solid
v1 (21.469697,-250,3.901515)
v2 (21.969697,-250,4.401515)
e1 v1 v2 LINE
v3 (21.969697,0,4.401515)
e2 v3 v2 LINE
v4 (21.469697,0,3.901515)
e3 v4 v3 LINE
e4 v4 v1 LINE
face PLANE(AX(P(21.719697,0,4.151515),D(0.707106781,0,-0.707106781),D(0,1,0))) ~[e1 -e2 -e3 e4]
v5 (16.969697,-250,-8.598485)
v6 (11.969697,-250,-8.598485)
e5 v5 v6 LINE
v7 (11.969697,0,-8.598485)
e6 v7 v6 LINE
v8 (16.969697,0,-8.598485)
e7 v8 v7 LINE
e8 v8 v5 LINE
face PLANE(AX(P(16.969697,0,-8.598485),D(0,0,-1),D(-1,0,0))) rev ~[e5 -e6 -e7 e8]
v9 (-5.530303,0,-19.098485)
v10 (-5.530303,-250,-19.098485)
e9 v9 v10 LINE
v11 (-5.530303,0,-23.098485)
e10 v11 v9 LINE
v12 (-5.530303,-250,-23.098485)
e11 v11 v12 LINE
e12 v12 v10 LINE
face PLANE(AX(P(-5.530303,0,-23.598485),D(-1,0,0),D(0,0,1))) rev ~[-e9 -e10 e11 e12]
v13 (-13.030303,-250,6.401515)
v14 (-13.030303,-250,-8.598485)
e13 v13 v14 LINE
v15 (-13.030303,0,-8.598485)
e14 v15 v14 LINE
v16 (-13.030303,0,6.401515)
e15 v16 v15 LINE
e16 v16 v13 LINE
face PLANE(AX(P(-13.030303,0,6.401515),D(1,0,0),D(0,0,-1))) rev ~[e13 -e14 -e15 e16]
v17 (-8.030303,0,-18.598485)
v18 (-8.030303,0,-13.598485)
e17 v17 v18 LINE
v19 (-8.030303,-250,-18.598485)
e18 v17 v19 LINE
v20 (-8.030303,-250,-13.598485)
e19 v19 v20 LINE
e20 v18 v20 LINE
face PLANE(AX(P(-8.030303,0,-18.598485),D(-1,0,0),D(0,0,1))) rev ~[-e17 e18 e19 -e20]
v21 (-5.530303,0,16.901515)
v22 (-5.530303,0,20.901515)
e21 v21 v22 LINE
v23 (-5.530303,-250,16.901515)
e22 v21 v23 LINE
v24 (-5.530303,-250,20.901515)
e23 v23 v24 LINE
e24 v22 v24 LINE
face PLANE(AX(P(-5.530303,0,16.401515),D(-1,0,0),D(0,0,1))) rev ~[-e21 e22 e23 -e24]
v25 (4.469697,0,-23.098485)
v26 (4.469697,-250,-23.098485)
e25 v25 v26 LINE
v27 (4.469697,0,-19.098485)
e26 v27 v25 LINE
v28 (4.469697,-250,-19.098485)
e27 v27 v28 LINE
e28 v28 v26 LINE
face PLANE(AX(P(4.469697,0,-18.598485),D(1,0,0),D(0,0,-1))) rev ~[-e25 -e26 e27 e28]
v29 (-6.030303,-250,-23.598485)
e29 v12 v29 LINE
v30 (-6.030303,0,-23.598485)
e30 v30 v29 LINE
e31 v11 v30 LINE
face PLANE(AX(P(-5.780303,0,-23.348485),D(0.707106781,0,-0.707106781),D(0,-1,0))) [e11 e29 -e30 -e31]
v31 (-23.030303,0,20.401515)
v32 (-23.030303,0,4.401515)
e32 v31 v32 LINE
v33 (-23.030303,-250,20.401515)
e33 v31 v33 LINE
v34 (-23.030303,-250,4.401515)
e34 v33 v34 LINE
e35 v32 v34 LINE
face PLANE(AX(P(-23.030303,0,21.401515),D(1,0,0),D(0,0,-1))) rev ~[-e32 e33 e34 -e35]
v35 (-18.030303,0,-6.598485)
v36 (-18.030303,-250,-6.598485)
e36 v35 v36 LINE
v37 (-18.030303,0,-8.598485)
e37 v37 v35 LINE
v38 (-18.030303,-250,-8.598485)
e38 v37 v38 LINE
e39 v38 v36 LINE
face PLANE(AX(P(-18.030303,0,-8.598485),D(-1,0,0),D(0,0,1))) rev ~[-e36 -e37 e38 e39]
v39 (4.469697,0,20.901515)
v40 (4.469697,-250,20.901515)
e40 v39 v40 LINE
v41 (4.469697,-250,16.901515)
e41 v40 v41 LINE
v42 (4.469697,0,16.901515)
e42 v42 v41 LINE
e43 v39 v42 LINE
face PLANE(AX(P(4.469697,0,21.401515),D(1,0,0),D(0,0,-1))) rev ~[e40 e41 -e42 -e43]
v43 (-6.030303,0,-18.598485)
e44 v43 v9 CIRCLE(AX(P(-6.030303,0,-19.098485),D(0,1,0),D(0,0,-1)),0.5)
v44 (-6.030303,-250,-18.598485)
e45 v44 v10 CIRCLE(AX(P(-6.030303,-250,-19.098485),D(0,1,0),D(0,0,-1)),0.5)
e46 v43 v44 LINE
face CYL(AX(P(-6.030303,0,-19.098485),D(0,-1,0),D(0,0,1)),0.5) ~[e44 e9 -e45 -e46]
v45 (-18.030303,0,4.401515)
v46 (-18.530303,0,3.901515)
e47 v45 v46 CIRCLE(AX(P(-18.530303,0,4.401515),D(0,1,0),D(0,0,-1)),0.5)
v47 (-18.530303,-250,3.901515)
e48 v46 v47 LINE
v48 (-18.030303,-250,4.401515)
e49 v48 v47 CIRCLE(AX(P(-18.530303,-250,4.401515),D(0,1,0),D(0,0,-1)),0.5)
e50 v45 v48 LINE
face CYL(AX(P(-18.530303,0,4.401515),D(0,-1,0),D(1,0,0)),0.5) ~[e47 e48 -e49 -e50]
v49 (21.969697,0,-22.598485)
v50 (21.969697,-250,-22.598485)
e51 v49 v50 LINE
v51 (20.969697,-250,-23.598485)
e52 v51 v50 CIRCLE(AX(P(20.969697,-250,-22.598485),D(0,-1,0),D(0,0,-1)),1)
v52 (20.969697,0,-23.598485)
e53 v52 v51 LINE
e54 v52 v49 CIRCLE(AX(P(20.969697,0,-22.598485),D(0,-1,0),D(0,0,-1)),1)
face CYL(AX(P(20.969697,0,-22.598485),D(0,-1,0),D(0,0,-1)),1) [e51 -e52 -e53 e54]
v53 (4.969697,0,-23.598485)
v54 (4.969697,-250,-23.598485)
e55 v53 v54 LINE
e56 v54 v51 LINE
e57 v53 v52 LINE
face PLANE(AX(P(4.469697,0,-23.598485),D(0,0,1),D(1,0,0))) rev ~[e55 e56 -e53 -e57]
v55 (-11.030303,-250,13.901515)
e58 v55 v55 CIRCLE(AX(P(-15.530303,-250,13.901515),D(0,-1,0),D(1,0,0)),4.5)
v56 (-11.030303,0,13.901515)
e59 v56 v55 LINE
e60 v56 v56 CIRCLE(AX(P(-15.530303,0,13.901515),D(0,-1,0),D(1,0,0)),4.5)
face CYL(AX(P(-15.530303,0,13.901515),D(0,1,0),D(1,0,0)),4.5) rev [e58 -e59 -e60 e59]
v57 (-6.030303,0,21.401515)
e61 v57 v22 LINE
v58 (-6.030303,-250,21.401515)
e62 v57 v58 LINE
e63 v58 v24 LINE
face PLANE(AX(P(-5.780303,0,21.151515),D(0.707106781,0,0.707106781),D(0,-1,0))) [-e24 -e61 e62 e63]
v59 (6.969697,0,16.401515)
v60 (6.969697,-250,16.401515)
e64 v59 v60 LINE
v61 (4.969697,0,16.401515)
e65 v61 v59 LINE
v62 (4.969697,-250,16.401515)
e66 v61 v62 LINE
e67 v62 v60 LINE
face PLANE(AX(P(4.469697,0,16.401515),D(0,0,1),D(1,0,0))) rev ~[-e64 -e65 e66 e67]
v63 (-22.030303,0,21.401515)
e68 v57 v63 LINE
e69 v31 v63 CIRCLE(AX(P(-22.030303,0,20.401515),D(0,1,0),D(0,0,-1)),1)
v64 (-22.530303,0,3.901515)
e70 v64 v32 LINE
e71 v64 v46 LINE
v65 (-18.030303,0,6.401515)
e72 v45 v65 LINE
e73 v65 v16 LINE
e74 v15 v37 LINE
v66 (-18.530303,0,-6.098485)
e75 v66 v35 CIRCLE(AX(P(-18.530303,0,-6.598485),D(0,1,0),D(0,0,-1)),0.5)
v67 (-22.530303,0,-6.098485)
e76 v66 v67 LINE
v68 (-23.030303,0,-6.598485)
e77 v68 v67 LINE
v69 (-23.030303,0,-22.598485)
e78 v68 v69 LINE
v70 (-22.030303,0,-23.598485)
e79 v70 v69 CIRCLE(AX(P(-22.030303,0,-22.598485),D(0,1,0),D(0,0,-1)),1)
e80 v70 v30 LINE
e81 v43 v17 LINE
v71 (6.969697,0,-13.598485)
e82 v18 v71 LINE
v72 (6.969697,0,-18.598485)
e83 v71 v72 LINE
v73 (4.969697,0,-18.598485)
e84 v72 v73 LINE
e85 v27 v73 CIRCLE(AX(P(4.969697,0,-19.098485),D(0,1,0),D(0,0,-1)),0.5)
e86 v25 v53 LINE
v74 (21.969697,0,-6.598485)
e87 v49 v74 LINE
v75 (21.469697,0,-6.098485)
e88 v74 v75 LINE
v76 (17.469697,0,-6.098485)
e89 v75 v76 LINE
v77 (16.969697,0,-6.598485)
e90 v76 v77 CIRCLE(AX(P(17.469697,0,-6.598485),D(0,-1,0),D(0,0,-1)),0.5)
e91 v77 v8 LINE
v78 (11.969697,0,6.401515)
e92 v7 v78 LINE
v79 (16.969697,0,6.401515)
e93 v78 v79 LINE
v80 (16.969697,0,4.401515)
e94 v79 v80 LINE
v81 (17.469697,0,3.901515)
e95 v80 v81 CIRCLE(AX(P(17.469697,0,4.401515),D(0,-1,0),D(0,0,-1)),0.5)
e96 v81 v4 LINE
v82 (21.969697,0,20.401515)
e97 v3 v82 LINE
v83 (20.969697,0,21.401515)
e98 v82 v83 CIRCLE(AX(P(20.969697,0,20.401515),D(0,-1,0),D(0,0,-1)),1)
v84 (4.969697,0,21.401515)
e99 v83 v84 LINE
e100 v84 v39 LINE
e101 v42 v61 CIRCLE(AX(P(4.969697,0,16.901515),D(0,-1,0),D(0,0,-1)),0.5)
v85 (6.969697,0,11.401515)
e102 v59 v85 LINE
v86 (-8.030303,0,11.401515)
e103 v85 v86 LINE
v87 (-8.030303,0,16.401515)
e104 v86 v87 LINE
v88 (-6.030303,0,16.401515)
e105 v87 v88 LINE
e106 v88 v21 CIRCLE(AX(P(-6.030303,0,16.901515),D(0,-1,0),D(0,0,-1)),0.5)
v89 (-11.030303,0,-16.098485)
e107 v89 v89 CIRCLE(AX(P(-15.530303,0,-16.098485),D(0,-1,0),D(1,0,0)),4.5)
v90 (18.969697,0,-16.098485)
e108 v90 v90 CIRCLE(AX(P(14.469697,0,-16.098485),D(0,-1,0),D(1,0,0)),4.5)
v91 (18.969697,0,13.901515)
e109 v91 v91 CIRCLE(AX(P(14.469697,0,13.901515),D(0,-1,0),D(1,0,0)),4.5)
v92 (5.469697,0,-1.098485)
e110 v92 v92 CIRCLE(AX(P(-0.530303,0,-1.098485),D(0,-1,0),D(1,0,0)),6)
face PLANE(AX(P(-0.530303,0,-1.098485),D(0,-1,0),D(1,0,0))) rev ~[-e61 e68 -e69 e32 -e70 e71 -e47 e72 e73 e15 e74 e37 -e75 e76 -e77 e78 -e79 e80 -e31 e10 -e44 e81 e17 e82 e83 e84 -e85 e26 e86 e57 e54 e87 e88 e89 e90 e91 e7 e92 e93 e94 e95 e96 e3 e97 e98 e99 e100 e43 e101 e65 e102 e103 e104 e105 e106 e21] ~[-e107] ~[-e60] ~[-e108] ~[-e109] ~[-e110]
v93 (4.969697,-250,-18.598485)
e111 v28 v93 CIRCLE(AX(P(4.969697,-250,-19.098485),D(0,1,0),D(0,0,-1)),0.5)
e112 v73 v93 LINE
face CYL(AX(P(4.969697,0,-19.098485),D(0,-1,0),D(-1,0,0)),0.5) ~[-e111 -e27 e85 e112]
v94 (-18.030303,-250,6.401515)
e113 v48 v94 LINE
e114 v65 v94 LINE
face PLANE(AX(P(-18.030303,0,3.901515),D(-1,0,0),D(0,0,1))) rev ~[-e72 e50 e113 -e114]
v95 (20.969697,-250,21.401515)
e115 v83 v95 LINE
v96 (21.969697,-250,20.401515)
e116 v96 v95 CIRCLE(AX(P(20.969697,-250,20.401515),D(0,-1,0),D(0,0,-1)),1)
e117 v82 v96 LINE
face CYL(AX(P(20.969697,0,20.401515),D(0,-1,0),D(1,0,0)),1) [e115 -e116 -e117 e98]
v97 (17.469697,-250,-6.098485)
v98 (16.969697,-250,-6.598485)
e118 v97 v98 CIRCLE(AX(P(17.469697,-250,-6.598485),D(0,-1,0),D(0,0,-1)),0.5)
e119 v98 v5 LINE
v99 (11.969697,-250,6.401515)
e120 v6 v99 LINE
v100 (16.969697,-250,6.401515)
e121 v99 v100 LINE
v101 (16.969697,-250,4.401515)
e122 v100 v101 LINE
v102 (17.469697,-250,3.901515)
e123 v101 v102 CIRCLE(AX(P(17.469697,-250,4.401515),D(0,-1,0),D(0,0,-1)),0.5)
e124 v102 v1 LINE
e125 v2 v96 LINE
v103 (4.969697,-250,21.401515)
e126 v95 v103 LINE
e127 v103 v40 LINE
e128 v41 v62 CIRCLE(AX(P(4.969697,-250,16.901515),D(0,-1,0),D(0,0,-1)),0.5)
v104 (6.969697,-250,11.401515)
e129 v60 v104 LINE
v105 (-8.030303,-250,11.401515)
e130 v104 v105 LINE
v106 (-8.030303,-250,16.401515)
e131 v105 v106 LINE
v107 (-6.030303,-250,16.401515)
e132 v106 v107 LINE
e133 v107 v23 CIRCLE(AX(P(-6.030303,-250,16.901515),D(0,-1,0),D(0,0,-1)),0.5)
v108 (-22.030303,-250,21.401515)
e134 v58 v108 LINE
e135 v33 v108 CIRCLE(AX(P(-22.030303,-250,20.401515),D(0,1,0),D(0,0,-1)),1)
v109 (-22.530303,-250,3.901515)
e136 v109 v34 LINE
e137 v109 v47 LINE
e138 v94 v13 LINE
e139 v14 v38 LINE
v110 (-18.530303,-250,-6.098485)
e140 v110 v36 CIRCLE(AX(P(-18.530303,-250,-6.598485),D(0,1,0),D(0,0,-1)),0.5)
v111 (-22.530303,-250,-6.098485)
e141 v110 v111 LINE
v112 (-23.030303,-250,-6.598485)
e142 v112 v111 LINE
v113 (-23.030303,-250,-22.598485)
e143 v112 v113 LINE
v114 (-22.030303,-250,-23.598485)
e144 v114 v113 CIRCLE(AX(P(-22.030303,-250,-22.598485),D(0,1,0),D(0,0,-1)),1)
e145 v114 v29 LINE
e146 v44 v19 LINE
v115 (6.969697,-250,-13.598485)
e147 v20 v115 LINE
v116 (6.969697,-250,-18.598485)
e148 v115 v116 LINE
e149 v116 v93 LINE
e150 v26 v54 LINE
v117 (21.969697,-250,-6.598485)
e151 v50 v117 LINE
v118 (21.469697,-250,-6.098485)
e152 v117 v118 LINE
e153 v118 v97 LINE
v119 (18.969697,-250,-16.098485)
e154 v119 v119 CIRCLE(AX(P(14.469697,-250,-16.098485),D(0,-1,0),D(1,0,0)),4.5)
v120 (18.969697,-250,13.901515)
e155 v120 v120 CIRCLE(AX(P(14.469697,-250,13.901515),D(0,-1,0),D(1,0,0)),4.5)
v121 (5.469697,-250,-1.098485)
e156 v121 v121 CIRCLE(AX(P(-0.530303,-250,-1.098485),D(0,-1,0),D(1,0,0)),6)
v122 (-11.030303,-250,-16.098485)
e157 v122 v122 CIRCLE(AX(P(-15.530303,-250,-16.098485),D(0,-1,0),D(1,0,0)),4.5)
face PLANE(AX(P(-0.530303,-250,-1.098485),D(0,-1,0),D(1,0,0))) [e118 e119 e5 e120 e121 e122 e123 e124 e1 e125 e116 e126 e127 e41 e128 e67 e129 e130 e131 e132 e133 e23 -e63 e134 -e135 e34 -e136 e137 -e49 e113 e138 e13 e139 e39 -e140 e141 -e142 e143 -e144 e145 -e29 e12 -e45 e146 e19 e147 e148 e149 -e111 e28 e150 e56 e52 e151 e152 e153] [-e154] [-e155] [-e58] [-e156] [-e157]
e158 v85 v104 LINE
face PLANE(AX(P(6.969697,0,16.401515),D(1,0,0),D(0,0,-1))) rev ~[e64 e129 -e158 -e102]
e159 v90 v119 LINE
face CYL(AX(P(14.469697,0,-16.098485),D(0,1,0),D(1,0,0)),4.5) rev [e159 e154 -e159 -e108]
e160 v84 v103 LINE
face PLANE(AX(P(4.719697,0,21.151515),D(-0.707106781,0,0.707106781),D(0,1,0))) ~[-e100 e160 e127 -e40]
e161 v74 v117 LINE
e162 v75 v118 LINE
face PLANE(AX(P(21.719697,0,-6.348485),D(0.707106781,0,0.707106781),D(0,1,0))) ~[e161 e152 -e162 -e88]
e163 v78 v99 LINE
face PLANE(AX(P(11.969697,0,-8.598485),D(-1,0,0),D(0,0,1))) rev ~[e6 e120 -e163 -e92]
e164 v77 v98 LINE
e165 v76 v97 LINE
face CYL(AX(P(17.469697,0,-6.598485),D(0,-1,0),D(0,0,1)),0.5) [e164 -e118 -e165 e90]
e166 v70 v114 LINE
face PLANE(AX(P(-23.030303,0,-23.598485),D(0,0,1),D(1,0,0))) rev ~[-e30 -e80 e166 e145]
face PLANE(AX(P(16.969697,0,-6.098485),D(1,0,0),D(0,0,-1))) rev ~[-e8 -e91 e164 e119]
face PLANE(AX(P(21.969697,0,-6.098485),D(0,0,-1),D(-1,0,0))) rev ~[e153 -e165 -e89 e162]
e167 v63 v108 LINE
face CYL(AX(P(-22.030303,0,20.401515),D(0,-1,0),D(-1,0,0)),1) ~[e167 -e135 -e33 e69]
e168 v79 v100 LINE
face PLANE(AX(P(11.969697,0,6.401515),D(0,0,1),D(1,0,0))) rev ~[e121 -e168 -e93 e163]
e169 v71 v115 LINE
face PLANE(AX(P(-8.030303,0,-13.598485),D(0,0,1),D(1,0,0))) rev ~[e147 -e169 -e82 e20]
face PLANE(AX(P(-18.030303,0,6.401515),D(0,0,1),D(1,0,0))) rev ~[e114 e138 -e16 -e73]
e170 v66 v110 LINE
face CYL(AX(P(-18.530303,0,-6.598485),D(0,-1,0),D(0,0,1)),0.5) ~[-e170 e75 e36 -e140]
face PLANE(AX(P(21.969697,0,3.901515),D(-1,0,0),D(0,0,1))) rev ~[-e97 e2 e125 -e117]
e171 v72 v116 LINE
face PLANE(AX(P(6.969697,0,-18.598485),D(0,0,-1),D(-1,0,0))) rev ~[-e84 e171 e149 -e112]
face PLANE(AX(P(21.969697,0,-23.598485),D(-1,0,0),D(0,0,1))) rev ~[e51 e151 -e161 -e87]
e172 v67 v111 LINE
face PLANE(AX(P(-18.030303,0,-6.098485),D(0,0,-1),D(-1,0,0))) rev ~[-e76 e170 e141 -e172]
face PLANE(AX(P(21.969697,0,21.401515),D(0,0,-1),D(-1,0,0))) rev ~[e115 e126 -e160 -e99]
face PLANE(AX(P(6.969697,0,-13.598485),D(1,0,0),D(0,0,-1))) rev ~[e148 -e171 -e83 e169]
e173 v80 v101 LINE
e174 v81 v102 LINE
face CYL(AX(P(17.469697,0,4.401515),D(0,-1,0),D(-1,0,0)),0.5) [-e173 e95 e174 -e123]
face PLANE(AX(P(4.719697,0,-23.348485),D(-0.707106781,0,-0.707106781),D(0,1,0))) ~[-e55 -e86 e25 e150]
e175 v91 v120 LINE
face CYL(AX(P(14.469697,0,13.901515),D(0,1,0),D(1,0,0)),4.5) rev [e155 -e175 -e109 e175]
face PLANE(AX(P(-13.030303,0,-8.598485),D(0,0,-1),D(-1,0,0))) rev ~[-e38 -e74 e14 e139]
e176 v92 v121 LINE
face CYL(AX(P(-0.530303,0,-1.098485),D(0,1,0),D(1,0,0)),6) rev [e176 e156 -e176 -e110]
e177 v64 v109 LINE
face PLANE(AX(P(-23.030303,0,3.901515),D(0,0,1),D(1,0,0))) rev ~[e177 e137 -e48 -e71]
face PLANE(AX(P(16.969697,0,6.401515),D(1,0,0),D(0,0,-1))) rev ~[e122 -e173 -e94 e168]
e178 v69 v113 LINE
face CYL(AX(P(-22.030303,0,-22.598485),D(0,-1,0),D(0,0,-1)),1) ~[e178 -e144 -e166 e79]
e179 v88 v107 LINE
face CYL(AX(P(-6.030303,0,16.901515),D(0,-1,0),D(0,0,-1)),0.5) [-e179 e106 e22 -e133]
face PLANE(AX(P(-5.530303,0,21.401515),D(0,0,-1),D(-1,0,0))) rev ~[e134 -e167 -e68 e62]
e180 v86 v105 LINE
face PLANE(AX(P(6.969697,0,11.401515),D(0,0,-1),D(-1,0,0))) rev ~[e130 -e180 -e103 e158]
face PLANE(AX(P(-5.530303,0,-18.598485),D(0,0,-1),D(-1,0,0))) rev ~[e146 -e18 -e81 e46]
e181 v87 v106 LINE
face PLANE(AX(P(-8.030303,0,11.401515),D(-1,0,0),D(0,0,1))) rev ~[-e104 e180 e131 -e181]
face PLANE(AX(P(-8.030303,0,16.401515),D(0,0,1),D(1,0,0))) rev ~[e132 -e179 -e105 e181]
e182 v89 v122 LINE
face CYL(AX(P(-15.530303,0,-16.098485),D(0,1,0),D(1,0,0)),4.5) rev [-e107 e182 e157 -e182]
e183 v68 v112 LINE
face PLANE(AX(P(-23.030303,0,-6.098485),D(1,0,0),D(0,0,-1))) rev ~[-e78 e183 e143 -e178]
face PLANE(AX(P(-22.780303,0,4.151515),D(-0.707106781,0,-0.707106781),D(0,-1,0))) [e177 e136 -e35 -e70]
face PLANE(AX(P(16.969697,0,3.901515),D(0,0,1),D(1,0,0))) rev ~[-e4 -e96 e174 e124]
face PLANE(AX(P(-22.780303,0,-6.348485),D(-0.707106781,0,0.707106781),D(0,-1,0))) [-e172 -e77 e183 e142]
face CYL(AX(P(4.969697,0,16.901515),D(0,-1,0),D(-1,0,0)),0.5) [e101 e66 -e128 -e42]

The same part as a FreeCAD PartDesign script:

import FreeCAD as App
import Part
import Sketcher


def edges_at(feature, points):
    """Names of the edges that pass closest to the given points."""
    edges = feature.Shape.Edges
    near = lambda p: min(range(len(edges)), key=lambda i: edges[i].distToShape(Part.Vertex(*p))[0])
    return sorted({f"Edge{near(p) + 1}" for p in points})


def add_polygon(sketch, points):
    """Adds a closed chain of lines whose ends are joined by coincident constraints."""
    first, n = sketch.GeometryCount, len(points)
    for a, b in zip(points, points[1:] + points[:1]):
        sketch.addGeometry(Part.LineSegment(App.Vector(*a, 0), App.Vector(*b, 0)), False)
    for i in range(n):
        sketch.addConstraint(Sketcher.Constraint("Coincident", first + i, 2, first + (i + 1) % n, 1))

doc = App.newDocument("Part")
params = doc.addObject("Spreadsheet::Sheet", "Params")
for row, (alias, value) in enumerate([
    ("sketch1_diameter", "9 mm"),
    ("sketch1_diameter2", "12 mm"),
    ("sketch1_width", "5 mm"),
    ("sketch1_width2", "15 mm"),
    ("sketch1_width3", "17.5 mm"),
    ("pad1_length", "250 mm"),
    ("fillet_radius", "1 mm"),
    ("fillet2_radius", "0.5 mm"),
    ("chamfer_size", "0.5 mm"),
], start=1):
    params.set(f"A{row}", alias)
    params.set(f"B{row}", "=" + value)
    params.setAlias(f"B{row}", alias)

body = doc.addObject("PartDesign::Body", "Body")

# Sketch on XZ plane
sketch1 = body.newObject("Sketcher::SketchObject", "Sketch")
sketch1.AttachmentSupport = (doc.getObject("XZ_Plane"), [""])
sketch1.MapMode = "FlatFace"
add_polygon(sketch1, [(4.469697, -23.598485), (21.969697, -23.598485), (21.969697, -6.098485), (16.969697, -6.098485), (16.969697, -8.598485), (11.969697, -8.598485), (11.969697, 6.401515), (16.969697, 6.401515), (16.969697, 3.901515), (21.969697, 3.901515), (21.969697, 21.401515), (4.469697, 21.401515), (4.469697, 16.401515), (6.969697, 16.401515), (6.969697, 11.401515), (-8.030303, 11.401515), (-8.030303, 16.401515), (-5.530303, 16.401515), (-5.530303, 21.401515), (-23.030303, 21.401515), (-23.030303, 3.901515), (-18.030303, 3.901515), (-18.030303, 6.401515), (-13.030303, 6.401515), (-13.030303, -8.598485), (-18.030303, -8.598485), (-18.030303, -6.098485), (-23.030303, -6.098485), (-23.030303, -23.598485), (-5.530303, -23.598485), (-5.530303, -18.598485), (-8.030303, -18.598485), (-8.030303, -13.598485), (6.969697, -13.598485), (6.969697, -18.598485), (4.469697, -18.598485)])  # lines 0-35
sketch1.addGeometry(Part.Circle(App.Vector(-15.530303, -16.098485, 0), App.Vector(0, 0, 1), 4.5), False)  # 36
sketch1.addGeometry(Part.Circle(App.Vector(14.469697, -16.098485, 0), App.Vector(0, 0, 1), 4.5), False)  # 37
sketch1.addGeometry(Part.Circle(App.Vector(-15.530303, 13.901515, 0), App.Vector(0, 0, 1), 4.5), False)  # 38
sketch1.addGeometry(Part.Circle(App.Vector(-0.530303, -1.098485, 0), App.Vector(0, 0, 1), 6), False)  # 39
sketch1.addGeometry(Part.Circle(App.Vector(14.469697, 13.901515, 0), App.Vector(0, 0, 1), 4.5), False)  # 40
sketch1.addConstraint([
    Sketcher.Constraint("Horizontal", 0),
    Sketcher.Constraint("Vertical", 1),
    Sketcher.Constraint("Horizontal", 2),
    Sketcher.Constraint("Vertical", 3),
    Sketcher.Constraint("Horizontal", 4),
    Sketcher.Constraint("Vertical", 5),
    Sketcher.Constraint("Horizontal", 6),
    Sketcher.Constraint("Vertical", 7),
    Sketcher.Constraint("Horizontal", 8),
    Sketcher.Constraint("Vertical", 9),
    Sketcher.Constraint("Horizontal", 10),
    Sketcher.Constraint("Vertical", 11),
    Sketcher.Constraint("Horizontal", 12),
    Sketcher.Constraint("Vertical", 13),
    Sketcher.Constraint("Horizontal", 14),
    Sketcher.Constraint("Vertical", 15),
    Sketcher.Constraint("Horizontal", 16),
    Sketcher.Constraint("Vertical", 17),
    Sketcher.Constraint("Horizontal", 18),
    Sketcher.Constraint("Vertical", 19),
    Sketcher.Constraint("Horizontal", 20),
    Sketcher.Constraint("Vertical", 21),
    Sketcher.Constraint("Horizontal", 22),
    Sketcher.Constraint("Vertical", 23),
    Sketcher.Constraint("Horizontal", 24),
    Sketcher.Constraint("Vertical", 25),
    Sketcher.Constraint("Horizontal", 26),
    Sketcher.Constraint("Vertical", 27),
    Sketcher.Constraint("Horizontal", 28),
    Sketcher.Constraint("Vertical", 29),
    Sketcher.Constraint("Horizontal", 30),
    Sketcher.Constraint("Vertical", 31),
    Sketcher.Constraint("Horizontal", 32),
    Sketcher.Constraint("Vertical", 33),
    Sketcher.Constraint("Horizontal", 34),
    Sketcher.Constraint("Vertical", 35),
    Sketcher.Constraint("Equal", 36, 37),
    Sketcher.Constraint("Equal", 37, 38),
    Sketcher.Constraint("Equal", 38, 40),
    Sketcher.Constraint("Horizontal", 36, 3, 37, 3),
    Sketcher.Constraint("Horizontal", 38, 3, 40, 3),
    Sketcher.Constraint("Horizontal", 12, 2, 15, 2),
    Sketcher.Constraint("Horizontal", 10, 2, 17, 2),
    Sketcher.Constraint("Horizontal", 8, 2, 19, 2),
    Sketcher.Constraint("Horizontal", 6, 2, 21, 2),
    Sketcher.Constraint("Horizontal", 4, 2, 23, 2),
    Sketcher.Constraint("Horizontal", 2, 2, 25, 2),
    Sketcher.Constraint("Horizontal", 0, 2, 27, 2),
    Sketcher.Constraint("Horizontal", 30, 2, 33, 2),
    Sketcher.Constraint("Vertical", 36, 3, 38, 3),
    Sketcher.Constraint("Vertical", 37, 3, 40, 3),
    Sketcher.Constraint("Vertical", 3, 2, 6, 2),
    Sketcher.Constraint("Vertical", 1, 2, 8, 2),
    Sketcher.Constraint("Vertical", 21, 2, 24, 2),
    Sketcher.Constraint("Vertical", 19, 2, 26, 2),
    Sketcher.Constraint("Vertical", 17, 2, 28, 2),
    Sketcher.Constraint("Vertical", 15, 2, 30, 2),
    Sketcher.Constraint("Vertical", 13, 2, 32, 2),
    Sketcher.Constraint("Vertical", 11, 2, 34, 2),
    Sketcher.Constraint("Equal", 2, 4),
    Sketcher.Constraint("Equal", 12, 16),
    Sketcher.Constraint("Equal", 10, 18),
    Sketcher.Constraint("Equal", 8, 20),
    Sketcher.Constraint("Equal", 20, 22),
    Sketcher.Constraint("Equal", 28, 1),
    Sketcher.Constraint("Equal", 34, 3),
    Sketcher.Constraint("Equal", 32, 5),
    Sketcher.Constraint("Equal", 3, 7),
    Sketcher.Constraint("Equal", 1, 9),
    Sketcher.Constraint("Equal", 26, 11),
    Sketcher.Constraint("Equal", 11, 13),
    Sketcher.Constraint("Equal", 17, 29),
    Sketcher.Constraint("Equal", 29, 31),
    Sketcher.Constraint("Diameter", 36, 9.0),
    Sketcher.Constraint("Diameter", 39, 12.0),
    Sketcher.Constraint("DistanceX", 2, 2, 2, 1, 5.0),
    Sketcher.Constraint("DistanceX", 14, 2, 14, 1, 15.0),
    Sketcher.Constraint("DistanceX", 0, 1, 0, 2, 17.5),
    Sketcher.Constraint("DistanceX", 12, 1, 12, 2, 2.5),
    Sketcher.Constraint("DistanceX", 36, 3, 37, 3, 30.0),
    Sketcher.Constraint("DistanceY", 36, 3, 38, 3, 30.0),
    Sketcher.Constraint("DistanceX", 36, 3, 39, 3, 15.0),
    Sketcher.Constraint("DistanceY", 36, 3, 39, 3, 15.0),
    Sketcher.Constraint("DistanceY", 37, 3, 1, 2, 10.0),
    Sketcher.Constraint("DistanceX", 10, 2, 40, 3, 10.0),
    Sketcher.Constraint("DistanceX", 36, 3, -1, 1, 15.530303),
    Sketcher.Constraint("DistanceY", 36, 3, -1, 1, 16.098485),
])
sketch1.setExpression("Constraints[109]", "Params.sketch1_diameter")
sketch1.setExpression("Constraints[110]", "Params.sketch1_diameter2")
sketch1.setExpression("Constraints[111]", "Params.sketch1_width")
sketch1.setExpression("Constraints[112]", "Params.sketch1_width2")
sketch1.setExpression("Constraints[113]", "Params.sketch1_width3")
pad1 = body.newObject("PartDesign::Pad", "Pad")
pad1.Profile = sketch1
pad1.setExpression("Length", "Params.pad1_length")
doc.recompute()

fillet = body.newObject("PartDesign::Fillet", "Fillet")
fillet.Base = (pad1, edges_at(pad1, [
    (21.97, -125, 21.402),
    (21.97, -125, -23.598),
    (-23.03, -125, -23.598),
    (-23.03, -125, 21.402),
]))
fillet.setExpression("Radius", "Params.fillet_radius")
doc.recompute()

fillet2 = body.newObject("PartDesign::Fillet", "Fillet001")
fillet2.Base = (fillet, edges_at(fillet, [
    (-18.03, -125, -6.098),
    (-18.03, -125, 3.902),
    (-5.53, -125, -18.598),
    (4.47, -125, -18.598),
    (16.97, -125, -6.098),
    (-5.53, -125, 16.402),
    (4.47, -125, 16.402),
    (16.97, -125, 3.902),
]))
fillet2.setExpression("Radius", "Params.fillet2_radius")
doc.recompute()

chamfer = body.newObject("PartDesign::Chamfer", "Chamfer")
chamfer.Base = (fillet2, edges_at(fillet2, [
    (21.97, -125, -6.098),
    (21.97, -125, 3.902),
    (4.47, -125, 21.402),
    (-5.53, -125, 21.402),
    (-23.03, -125, 3.902),
    (-23.03, -125, -6.098),
    (4.47, -125, -23.598),
    (-5.53, -125, -23.598),
]))
chamfer.setExpression("Size", "Params.chamfer_size")

doc.recompute()
